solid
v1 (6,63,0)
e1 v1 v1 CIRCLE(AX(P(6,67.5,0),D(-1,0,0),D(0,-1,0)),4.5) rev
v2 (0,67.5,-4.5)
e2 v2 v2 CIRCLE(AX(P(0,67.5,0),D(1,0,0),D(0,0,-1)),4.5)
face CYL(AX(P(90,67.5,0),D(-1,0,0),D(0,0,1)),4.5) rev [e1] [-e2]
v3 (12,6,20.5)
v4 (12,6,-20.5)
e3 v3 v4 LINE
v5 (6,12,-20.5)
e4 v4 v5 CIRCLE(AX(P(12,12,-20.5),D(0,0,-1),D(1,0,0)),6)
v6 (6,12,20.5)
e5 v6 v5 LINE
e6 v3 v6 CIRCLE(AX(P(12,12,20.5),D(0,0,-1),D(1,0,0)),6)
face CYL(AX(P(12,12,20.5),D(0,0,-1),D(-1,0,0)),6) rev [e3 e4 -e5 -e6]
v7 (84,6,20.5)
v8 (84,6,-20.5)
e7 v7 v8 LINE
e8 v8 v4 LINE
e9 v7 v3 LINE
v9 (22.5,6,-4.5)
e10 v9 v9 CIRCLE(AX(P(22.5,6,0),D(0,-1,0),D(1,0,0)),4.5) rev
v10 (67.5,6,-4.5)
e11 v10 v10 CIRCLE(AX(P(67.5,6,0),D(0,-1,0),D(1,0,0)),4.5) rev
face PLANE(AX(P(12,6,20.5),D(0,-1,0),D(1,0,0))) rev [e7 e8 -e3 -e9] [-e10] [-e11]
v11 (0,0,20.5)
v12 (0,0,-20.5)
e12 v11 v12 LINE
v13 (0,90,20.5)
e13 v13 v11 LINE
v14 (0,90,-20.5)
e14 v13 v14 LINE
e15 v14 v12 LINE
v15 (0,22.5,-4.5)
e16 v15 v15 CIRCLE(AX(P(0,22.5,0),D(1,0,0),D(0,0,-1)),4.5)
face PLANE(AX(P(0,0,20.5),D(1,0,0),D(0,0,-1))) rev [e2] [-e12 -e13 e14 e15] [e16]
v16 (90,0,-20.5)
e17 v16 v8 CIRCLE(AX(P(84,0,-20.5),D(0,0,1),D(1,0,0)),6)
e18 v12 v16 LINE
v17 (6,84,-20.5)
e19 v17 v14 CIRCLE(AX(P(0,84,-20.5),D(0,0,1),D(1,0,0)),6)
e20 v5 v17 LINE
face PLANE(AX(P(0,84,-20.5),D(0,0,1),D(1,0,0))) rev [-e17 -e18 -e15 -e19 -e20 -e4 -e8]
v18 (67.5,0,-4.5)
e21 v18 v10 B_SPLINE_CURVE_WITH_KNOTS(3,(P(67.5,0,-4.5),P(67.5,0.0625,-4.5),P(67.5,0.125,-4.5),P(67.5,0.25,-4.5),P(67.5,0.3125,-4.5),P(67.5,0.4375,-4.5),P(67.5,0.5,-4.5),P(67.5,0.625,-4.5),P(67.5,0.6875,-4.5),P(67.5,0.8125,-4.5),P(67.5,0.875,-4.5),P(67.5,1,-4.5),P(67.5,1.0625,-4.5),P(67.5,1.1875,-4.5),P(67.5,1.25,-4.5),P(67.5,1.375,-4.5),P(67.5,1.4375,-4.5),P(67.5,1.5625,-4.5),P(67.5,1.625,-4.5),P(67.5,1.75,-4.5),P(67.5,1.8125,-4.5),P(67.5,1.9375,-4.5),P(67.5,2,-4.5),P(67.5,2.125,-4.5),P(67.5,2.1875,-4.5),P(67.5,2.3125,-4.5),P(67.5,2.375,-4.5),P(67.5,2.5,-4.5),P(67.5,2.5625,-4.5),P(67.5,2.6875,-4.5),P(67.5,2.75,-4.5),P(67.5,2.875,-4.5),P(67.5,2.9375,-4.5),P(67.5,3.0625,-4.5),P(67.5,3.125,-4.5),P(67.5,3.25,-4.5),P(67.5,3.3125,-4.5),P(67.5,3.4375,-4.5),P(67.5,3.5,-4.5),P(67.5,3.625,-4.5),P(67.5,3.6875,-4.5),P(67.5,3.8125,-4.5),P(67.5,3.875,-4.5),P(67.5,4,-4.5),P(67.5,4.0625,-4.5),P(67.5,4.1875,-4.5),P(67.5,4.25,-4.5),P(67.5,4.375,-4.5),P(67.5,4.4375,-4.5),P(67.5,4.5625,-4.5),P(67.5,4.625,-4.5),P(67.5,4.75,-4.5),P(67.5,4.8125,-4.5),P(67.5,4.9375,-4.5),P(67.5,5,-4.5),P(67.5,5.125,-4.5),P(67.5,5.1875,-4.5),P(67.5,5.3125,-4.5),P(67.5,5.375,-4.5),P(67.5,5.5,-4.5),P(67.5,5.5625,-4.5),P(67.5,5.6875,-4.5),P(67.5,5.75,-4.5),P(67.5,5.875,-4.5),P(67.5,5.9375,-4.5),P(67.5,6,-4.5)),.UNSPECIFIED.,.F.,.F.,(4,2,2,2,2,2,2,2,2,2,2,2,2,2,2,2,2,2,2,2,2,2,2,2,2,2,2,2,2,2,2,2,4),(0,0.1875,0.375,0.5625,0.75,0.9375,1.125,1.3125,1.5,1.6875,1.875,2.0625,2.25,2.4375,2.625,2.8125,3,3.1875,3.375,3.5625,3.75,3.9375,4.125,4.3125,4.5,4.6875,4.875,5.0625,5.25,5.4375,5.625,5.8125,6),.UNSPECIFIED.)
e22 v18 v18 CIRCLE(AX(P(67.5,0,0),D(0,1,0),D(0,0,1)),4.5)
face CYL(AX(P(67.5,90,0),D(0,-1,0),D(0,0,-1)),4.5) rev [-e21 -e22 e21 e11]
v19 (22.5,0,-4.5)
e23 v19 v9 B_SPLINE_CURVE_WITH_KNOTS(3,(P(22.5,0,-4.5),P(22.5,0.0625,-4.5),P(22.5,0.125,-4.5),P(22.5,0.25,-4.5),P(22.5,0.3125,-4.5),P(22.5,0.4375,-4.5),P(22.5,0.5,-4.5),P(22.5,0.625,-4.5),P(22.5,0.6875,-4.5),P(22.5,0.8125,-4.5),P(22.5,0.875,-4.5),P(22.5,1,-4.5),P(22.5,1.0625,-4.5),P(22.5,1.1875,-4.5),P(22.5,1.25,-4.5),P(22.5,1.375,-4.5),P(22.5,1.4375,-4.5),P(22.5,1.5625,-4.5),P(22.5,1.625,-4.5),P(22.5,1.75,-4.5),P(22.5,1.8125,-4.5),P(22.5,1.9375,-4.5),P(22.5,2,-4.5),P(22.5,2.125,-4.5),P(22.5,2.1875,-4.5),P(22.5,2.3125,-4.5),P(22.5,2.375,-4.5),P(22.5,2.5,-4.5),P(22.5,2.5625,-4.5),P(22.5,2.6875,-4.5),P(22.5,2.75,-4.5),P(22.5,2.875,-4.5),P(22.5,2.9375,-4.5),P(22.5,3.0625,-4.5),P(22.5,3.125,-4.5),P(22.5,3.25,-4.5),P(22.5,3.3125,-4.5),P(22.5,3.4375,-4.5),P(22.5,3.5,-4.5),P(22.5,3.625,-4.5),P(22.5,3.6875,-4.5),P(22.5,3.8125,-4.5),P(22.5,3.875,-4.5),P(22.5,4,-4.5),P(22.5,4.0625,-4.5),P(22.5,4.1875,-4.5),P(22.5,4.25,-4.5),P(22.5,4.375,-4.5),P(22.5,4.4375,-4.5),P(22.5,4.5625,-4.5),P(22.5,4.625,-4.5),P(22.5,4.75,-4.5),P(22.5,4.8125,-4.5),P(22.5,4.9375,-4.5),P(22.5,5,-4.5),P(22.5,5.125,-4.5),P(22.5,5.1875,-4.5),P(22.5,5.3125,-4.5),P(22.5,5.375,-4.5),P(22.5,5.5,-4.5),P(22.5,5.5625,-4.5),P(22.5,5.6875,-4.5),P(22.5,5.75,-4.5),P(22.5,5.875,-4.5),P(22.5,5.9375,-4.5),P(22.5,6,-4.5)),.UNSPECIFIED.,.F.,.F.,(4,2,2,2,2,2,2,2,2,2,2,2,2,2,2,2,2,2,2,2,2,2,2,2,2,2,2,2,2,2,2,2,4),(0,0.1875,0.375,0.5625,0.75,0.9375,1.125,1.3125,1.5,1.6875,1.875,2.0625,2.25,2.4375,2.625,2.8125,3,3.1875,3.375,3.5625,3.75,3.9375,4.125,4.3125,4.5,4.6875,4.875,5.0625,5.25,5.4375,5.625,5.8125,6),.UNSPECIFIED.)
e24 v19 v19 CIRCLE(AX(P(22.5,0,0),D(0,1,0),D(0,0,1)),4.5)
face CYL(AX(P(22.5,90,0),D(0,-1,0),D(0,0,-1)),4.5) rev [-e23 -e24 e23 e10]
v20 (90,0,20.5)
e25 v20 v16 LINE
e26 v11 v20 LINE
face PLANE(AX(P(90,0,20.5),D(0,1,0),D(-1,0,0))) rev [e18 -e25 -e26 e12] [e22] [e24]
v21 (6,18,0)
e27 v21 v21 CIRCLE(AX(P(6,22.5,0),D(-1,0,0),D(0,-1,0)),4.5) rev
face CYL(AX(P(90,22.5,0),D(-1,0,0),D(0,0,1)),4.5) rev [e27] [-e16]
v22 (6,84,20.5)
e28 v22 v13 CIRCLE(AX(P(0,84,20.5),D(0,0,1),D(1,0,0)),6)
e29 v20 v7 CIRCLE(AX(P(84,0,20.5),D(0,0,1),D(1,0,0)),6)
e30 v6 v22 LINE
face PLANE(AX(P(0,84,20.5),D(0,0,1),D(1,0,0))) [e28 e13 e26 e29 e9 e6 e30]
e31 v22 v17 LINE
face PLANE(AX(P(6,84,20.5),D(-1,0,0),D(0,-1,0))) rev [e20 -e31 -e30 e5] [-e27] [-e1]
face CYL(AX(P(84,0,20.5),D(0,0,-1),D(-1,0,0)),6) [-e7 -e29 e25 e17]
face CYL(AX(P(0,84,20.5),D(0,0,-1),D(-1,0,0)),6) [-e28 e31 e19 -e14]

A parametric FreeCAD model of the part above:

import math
import FreeCAD as App
import Part
import Sketcher
from FreeCAD import Vector
Q = App.Units.Quantity

doc = App.newDocument("Part")
params = doc.addObject("Spreadsheet::Sheet", "Params")
for row, (alias, value) in enumerate([
    ("sketch1_radius", "6 mm"),
    ("sketch1_width", "90 mm"),
    ("pad1_length", "41 mm"),
    ("sketch2_diameter", "9 mm"),
    ("sketch3_diameter", "9 mm"),
], start=1):
    params.set(f"A{row}", alias)
    params.set(f"B{row}", "=" + value)
    params.setAlias(f"B{row}", alias)

body = doc.addObject("PartDesign::Body", "Body")

# Sketch on XY plane
sketch1 = body.newObject("Sketcher::SketchObject", "Sketch")
sketch1.AttachmentSupport = (doc.getObject("XY_Plane"), [""])
sketch1.MapMode = "FlatFace"
sketch1.addGeometry(Part.LineSegment(Vector(0, 90, 0), Vector(0, 0, 0)), False)
sketch1.addGeometry(Part.LineSegment(Vector(0, 0, 0), Vector(90, 0, 0)), False)
sketch1.addGeometry(Part.ArcOfCircle(Part.Circle(Vector(84, 0, 0), Vector(0, 0, 1), 6), math.radians(0), math.radians(90)), False)
sketch1.addGeometry(Part.LineSegment(Vector(84, 6, 0), Vector(12, 6, 0)), False)
sketch1.addGeometry(Part.ArcOfCircle(Part.Circle(Vector(12, 12, 0), Vector(0, 0, 1), 6), math.radians(180), math.radians(270)), False)
sketch1.addGeometry(Part.LineSegment(Vector(6, 12, 0), Vector(6, 84, 0)), False)
sketch1.addGeometry(Part.ArcOfCircle(Part.Circle(Vector(0, 84, 0), Vector(0, 0, 1), 6), math.radians(0), math.radians(90)), False)
sketch1.addConstraint(Sketcher.Constraint("Coincident", 0, 2, 1, 1))
sketch1.addConstraint(Sketcher.Constraint("Coincident", 1, 2, 2, 1))
sketch1.addConstraint(Sketcher.Constraint("Tangent", 2, 2, 3, 1))
sketch1.addConstraint(Sketcher.Constraint("Tangent", 3, 2, 4, 2))
sketch1.addConstraint(Sketcher.Constraint("Tangent", 4, 1, 5, 1))
sketch1.addConstraint(Sketcher.Constraint("Tangent", 5, 2, 6, 1))
sketch1.addConstraint(Sketcher.Constraint("Coincident", 6, 2, 0, 1))
sketch1.addConstraint(Sketcher.Constraint("Vertical", 0))
sketch1.addConstraint(Sketcher.Constraint("Horizontal", 1))
sketch1.addConstraint(Sketcher.Constraint("Horizontal", 3))
sketch1.addConstraint(Sketcher.Constraint("Vertical", 5))
sketch1.addConstraint(Sketcher.Constraint("Coincident", 0, 2, -1, 1))
sketch1.addConstraint(Sketcher.Constraint("Equal", 2, 4))
sketch1.addConstraint(Sketcher.Constraint("Equal", 4, 6))
sketch1.addConstraint(Sketcher.Constraint("PointOnObject", 2, 3, -1))
sketch1.addConstraint(Sketcher.Constraint("PointOnObject", 6, 3, -2))
sketch1.addConstraint(Sketcher.Constraint("Equal", 1, 0))
sketch1.addConstraint(Sketcher.Constraint("Radius", 2, Q("6 mm")))
sketch1.addConstraint(Sketcher.Constraint("DistanceX", 1, 1, 1, 2, Q("90 mm")))
sketch1.setExpression("Constraints[17]", "Params.sketch1_radius")
sketch1.setExpression("Constraints[18]", "Params.sketch1_width")
pad1 = body.newObject("PartDesign::Pad", "Pad")
pad1.Profile = sketch1
pad1.setExpression("Length", "Params.pad1_length")
pad1.Midplane = True

# Sketch on XZ plane
sketch2 = body.newObject("Sketcher::SketchObject", "Sketch001")
sketch2.AttachmentSupport = (doc.getObject("XZ_Plane"), [""])
sketch2.MapMode = "FlatFace"
sketch2.addGeometry(Part.Circle(Vector(22.5, 0, 0), Vector(0, 0, 1), 4.5), False)
sketch2.addGeometry(Part.Circle(Vector(67.5, 0, 0), Vector(0, 0, 1), 4.5), False)
sketch2.addConstraint(Sketcher.Constraint("Equal", 0, 1))
sketch2.addConstraint(Sketcher.Constraint("PointOnObject", 0, 3, -1))
sketch2.addConstraint(Sketcher.Constraint("PointOnObject", 1, 3, -1))
sketch2.addConstraint(Sketcher.Constraint("Diameter", 0, Q("9 mm")))
sketch2.addConstraint(Sketcher.Constraint("DistanceX", 0, 3, 1, 3, Q("45 mm")))
sketch2.addConstraint(Sketcher.Constraint("DistanceX", -1, 1, 0, 3, Q("22.5 mm")))
sketch2.setExpression("Constraints[3]", "Params.sketch2_diameter")
pocket1 = body.newObject("PartDesign::Pocket", "Pocket")
pocket1.Profile = sketch2
pocket1.Type = "ThroughAll"

# Sketch on YZ plane
sketch3 = body.newObject("Sketcher::SketchObject", "Sketch002")
sketch3.AttachmentSupport = (doc.getObject("YZ_Plane"), [""])
sketch3.MapMode = "FlatFace"
sketch3.addGeometry(Part.Circle(Vector(22.5, 0, 0), Vector(0, 0, 1), 4.5), False)
sketch3.addGeometry(Part.Circle(Vector(67.5, 0, 0), Vector(0, 0, 1), 4.5), False)
sketch3.addConstraint(Sketcher.Constraint("Equal", 0, 1))
sketch3.addConstraint(Sketcher.Constraint("PointOnObject", 0, 3, -1))
sketch3.addConstraint(Sketcher.Constraint("PointOnObject", 1, 3, -1))
sketch3.addConstraint(Sketcher.Constraint("Diameter", 0, Q("9 mm")))
sketch3.addConstraint(Sketcher.Constraint("DistanceX", 0, 3, 1, 3, Q("45 mm")))
sketch3.addConstraint(Sketcher.Constraint("DistanceX", -1, 1, 0, 3, Q("22.5 mm")))
sketch3.setExpression("Constraints[3]", "Params.sketch3_diameter")
pocket2 = body.newObject("PartDesign::Pocket", "Pocket001")
pocket2.Profile = sketch3
pocket2.Type = "ThroughAll"
pocket2.Reversed = True

doc.recompute()
